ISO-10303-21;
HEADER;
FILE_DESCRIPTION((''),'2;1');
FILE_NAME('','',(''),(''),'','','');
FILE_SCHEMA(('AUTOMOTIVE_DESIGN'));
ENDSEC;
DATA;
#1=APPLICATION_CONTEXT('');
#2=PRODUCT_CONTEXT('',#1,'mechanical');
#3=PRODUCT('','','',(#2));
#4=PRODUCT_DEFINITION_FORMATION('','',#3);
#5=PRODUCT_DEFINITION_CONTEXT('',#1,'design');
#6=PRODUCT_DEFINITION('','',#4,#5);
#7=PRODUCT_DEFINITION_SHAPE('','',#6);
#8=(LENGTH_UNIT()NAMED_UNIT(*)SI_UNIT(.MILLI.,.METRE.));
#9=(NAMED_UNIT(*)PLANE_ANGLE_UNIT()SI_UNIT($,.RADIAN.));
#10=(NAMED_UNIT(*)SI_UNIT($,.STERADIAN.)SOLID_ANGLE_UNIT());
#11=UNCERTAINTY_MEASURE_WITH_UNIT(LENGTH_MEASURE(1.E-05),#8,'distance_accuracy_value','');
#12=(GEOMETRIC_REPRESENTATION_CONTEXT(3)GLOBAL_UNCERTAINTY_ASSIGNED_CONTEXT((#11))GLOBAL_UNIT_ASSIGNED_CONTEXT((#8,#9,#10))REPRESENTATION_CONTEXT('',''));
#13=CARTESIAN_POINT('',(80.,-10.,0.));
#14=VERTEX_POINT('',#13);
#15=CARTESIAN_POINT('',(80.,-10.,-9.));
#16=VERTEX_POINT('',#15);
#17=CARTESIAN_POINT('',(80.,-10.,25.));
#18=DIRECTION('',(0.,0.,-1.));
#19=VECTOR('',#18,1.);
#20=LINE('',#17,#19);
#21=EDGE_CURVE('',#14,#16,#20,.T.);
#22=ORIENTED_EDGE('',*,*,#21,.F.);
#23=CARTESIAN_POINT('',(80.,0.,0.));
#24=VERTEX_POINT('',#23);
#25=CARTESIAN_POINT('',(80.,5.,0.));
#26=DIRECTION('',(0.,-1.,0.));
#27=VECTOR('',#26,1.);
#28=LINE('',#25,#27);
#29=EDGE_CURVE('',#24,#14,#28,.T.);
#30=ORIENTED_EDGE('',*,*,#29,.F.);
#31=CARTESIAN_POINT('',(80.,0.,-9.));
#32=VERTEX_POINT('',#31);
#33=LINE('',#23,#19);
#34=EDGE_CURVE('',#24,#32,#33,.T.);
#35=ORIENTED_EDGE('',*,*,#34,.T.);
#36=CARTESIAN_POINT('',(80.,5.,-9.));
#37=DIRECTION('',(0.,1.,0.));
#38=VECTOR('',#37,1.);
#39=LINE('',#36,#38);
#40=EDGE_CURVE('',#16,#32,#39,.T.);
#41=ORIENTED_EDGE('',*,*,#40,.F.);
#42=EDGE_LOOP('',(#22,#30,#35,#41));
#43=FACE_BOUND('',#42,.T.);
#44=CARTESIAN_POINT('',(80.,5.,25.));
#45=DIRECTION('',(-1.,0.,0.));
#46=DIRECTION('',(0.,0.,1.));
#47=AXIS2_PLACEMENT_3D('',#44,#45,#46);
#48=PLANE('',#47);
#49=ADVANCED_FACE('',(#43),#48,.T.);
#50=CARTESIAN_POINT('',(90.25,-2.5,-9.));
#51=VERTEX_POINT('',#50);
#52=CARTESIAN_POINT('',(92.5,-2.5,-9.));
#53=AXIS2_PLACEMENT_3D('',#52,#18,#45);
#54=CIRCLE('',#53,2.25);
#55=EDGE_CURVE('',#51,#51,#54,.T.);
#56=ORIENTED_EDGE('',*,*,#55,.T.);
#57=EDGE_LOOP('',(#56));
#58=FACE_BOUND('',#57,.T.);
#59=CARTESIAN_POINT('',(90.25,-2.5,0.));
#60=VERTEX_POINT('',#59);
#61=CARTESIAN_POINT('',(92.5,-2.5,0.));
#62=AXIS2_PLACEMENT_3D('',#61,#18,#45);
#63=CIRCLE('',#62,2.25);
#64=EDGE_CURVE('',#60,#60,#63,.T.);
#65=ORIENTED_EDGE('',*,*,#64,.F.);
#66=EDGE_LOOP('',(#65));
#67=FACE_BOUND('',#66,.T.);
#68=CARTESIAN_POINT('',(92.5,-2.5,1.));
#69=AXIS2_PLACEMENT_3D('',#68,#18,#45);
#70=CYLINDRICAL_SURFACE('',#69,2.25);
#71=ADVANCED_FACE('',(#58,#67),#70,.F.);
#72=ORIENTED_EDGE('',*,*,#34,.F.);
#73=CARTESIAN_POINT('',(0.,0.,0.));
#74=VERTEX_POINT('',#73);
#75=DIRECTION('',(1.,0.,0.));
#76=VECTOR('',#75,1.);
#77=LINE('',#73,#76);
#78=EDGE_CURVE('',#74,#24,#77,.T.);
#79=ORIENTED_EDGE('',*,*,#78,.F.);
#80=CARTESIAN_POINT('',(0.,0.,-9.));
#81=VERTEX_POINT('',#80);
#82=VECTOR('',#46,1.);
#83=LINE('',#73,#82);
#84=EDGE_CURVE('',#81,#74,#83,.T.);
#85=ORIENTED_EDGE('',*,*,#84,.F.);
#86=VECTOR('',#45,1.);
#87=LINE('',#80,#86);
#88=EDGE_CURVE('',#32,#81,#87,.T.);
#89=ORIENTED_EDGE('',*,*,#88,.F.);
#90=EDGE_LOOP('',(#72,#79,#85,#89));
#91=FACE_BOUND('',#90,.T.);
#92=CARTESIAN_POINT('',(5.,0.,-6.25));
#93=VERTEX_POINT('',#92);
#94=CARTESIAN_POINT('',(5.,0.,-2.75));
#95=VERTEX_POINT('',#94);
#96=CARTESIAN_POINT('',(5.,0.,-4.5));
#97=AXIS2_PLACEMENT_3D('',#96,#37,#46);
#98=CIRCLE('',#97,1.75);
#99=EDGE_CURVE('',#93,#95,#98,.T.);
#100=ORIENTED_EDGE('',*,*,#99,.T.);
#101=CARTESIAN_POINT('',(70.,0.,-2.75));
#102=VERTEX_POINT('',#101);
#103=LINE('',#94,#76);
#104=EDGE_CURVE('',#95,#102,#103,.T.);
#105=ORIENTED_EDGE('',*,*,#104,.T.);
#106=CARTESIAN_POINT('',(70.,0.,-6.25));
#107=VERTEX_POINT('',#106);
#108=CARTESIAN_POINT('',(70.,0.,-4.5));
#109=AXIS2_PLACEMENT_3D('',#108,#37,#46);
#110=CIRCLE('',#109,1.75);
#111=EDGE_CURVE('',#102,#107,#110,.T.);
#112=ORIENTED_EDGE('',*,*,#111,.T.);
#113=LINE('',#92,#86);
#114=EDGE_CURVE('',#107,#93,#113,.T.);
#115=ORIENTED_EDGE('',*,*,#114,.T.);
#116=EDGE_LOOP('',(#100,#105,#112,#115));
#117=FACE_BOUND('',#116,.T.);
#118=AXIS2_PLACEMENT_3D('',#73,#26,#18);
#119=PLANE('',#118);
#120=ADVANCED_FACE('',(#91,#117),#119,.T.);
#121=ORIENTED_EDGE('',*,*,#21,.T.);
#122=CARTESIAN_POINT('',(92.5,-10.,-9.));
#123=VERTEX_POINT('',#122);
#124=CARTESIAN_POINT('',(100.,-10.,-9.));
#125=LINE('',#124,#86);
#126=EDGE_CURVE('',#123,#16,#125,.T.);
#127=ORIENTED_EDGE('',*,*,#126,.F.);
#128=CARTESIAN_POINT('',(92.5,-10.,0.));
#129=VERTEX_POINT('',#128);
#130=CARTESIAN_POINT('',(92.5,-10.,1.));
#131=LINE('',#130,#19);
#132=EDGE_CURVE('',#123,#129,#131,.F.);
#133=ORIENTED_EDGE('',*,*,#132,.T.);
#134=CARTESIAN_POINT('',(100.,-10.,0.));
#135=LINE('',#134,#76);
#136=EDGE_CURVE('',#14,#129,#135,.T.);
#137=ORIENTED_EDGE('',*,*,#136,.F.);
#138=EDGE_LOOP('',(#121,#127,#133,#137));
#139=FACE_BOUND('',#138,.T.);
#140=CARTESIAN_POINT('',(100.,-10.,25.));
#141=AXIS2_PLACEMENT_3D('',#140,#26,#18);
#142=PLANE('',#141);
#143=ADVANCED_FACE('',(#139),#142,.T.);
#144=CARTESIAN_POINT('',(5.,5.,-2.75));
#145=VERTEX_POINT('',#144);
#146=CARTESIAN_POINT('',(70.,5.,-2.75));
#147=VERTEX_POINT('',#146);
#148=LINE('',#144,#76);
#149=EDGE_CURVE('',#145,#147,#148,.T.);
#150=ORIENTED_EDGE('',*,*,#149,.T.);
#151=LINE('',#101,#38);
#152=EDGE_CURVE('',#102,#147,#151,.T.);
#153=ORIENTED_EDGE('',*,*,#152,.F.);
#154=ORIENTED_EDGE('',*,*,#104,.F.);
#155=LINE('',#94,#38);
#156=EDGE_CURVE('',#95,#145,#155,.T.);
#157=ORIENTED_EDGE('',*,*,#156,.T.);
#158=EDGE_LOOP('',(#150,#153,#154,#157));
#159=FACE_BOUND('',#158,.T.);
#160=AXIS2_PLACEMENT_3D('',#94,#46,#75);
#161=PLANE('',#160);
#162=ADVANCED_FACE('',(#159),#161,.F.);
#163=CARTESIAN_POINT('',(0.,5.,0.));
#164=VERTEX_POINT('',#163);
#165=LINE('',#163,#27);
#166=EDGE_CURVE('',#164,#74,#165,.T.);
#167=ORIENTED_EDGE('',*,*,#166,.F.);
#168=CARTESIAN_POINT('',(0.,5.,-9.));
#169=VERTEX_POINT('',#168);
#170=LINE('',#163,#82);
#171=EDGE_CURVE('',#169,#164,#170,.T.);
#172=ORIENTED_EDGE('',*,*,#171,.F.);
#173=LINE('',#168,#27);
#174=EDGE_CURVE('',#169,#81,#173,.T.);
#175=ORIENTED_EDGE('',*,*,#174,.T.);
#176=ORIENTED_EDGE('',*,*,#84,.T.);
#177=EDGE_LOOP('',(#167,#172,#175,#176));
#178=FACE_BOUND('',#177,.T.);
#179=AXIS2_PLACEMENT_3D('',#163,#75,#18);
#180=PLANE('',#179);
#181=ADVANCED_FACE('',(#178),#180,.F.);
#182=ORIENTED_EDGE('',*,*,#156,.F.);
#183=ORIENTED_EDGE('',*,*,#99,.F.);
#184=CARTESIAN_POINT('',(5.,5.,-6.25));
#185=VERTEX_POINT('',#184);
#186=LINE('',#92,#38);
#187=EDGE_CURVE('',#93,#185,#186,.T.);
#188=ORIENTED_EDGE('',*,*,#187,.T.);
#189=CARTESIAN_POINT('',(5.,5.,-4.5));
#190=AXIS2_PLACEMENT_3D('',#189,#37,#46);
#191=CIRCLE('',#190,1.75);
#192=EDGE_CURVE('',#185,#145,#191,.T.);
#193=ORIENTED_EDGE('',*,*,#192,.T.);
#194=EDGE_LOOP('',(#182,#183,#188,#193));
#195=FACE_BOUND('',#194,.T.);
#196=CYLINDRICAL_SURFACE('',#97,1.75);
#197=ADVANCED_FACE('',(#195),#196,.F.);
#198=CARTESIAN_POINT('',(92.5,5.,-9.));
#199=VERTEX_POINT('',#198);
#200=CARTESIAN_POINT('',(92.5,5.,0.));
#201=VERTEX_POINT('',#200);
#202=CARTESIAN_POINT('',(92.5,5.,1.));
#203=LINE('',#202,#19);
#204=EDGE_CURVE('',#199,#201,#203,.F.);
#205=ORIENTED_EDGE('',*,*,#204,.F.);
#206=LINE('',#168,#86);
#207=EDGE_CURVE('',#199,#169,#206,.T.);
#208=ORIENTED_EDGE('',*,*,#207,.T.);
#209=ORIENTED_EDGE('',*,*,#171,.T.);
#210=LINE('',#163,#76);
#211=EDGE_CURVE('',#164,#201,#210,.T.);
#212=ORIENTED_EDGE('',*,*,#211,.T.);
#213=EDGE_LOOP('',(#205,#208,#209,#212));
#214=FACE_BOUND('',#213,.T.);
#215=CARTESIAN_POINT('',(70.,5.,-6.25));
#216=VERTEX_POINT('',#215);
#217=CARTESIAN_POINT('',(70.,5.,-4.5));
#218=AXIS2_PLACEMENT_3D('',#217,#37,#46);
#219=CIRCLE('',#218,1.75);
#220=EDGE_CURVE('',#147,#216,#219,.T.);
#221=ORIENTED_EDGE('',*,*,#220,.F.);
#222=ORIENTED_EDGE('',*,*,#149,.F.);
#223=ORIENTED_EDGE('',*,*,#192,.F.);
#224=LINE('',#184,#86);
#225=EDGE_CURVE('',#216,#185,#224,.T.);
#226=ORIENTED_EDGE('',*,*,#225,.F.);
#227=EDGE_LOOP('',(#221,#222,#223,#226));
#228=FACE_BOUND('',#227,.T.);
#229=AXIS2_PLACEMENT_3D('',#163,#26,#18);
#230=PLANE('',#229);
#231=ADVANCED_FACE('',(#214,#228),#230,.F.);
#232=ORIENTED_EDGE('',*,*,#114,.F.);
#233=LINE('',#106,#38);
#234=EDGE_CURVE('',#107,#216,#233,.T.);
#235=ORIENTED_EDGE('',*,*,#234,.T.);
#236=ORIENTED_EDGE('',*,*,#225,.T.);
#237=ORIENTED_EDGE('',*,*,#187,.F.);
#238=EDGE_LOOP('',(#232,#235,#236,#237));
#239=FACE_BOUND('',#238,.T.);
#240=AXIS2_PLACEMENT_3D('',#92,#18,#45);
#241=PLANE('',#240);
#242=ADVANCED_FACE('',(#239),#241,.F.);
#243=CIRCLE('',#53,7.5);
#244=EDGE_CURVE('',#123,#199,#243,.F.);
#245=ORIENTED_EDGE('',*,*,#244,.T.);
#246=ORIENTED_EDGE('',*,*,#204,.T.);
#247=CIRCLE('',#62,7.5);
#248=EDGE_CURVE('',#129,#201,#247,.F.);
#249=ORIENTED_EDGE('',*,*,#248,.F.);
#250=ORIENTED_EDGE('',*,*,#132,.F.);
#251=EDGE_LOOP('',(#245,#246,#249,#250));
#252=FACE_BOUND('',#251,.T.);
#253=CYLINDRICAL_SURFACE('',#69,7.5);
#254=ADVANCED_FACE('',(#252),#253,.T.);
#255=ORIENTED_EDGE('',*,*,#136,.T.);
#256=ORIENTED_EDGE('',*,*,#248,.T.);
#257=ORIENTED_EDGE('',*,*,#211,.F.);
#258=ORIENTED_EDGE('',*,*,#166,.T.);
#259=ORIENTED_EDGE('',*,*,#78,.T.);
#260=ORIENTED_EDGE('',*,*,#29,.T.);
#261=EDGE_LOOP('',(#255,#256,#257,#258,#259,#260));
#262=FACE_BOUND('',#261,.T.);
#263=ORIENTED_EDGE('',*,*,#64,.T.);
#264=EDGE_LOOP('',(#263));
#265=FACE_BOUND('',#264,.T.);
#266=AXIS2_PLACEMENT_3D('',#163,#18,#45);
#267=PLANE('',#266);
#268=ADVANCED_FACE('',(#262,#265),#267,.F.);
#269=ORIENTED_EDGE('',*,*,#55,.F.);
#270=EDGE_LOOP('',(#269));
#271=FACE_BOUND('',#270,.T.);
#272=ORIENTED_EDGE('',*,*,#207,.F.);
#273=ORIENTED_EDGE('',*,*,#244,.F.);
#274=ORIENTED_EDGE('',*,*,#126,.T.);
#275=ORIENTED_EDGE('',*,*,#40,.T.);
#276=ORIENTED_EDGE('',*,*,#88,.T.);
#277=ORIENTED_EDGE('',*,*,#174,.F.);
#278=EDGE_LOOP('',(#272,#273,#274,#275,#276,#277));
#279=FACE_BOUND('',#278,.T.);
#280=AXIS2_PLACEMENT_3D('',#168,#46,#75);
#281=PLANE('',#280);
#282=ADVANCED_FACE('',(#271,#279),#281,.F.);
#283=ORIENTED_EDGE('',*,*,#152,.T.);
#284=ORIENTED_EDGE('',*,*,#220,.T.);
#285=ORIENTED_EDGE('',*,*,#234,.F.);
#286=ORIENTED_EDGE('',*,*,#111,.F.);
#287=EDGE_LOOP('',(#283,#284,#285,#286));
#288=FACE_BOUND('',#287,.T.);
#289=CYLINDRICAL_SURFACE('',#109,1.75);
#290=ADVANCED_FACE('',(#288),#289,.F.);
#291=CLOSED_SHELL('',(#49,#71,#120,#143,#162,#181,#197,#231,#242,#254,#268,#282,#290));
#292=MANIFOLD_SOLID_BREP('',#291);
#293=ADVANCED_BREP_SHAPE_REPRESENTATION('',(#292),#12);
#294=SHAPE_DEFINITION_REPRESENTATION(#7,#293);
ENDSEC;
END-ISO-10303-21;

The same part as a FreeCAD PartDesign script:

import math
import FreeCAD as App
import Part
import Sketcher
Q = App.Units.Quantity


def add_polygon(sketch, points):
    """Adds a closed chain of lines whose ends are joined by coincident constraints."""
    first, n = sketch.GeometryCount, len(points)
    for a, b in zip(points, points[1:] + points[:1]):
        sketch.addGeometry(Part.LineSegment(App.Vector(*a, 0), App.Vector(*b, 0)), False)
    for i in range(n):
        sketch.addConstraint(Sketcher.Constraint("Coincident", first + i, 2, first + (i + 1) % n, 1))

doc = App.newDocument("Part")
params = doc.addObject("Spreadsheet::Sheet", "Params")
for row, (alias, value) in enumerate([
    ("sketch1_width", "100 mm"),
    ("sketch1_height", "9 mm"),
    ("pad1_length", "5 mm"),
    ("sketch2_width", "65 mm"),
    ("sketch2_radius", "1.75 mm"),
    ("sketch3_width", "20 mm"),
    ("sketch3_height", "15 mm"),
    ("pad2_length", "9 mm"),
    ("sketch4_diameter", "4.5 mm"),
    ("sketch4_radius", "7.5 mm"),
    ("pocket2_length", "10 mm"),
], start=1):
    params.set(f"A{row}", alias)
    params.set(f"B{row}", "=" + value)
    params.setAlias(f"B{row}", alias)

body = doc.addObject("PartDesign::Body", "Body")

# Sketch on XZ plane
sketch1 = doc.addObject("Sketcher::SketchObject", "Sketch")
body.addObject(sketch1)
sketch1.AttachmentSupport = (doc.XZ_Plane, [""])
sketch1.MapMode = "FlatFace"
add_polygon(sketch1, [(0, -9), (0, 0), (100, 0), (100, -9)])  # lines 0-3
sketch1.addConstraint([
    Sketcher.Constraint("Vertical", 0),
    Sketcher.Constraint("Horizontal", 1),
    Sketcher.Constraint("Vertical", 2),
    Sketcher.Constraint("Horizontal", 3),
    Sketcher.Constraint("Coincident", 0, 2, -1, 1),
    Sketcher.Constraint("DistanceX", 1, 1, 1, 2, Q("100 mm")),
    Sketcher.Constraint("DistanceY", 0, 1, 0, 2, Q("9 mm")),
])
sketch1.setExpression("Constraints[9]", "Params.sketch1_width")
sketch1.setExpression("Constraints[10]", "Params.sketch1_height")
pad1 = doc.addObject("PartDesign::Pad", "Pad")
body.addObject(pad1)
pad1.Profile = sketch1
pad1.setExpression("Length", "Params.pad1_length")
pad1.Reversed = True

# Sketch on XZ plane
sketch2 = doc.addObject("Sketcher::SketchObject", "Sketch001")
body.addObject(sketch2)
sketch2.AttachmentSupport = (doc.XZ_Plane, [""])
sketch2.MapMode = "FlatFace"
sketch2.AttachmentOffset = App.Placement(App.Vector(0, 0, -5), App.Rotation())
sketch2.addGeometry([
    Part.LineSegment(App.Vector(70, -6.2, 0), App.Vector(5, -6.2, 0)),
    Part.ArcOfCircle(Part.Circle(App.Vector(5, -4.5, 0), App.Vector(0, 0, 1), 1.8), math.radians(90), math.radians(270)),
    Part.LineSegment(App.Vector(5, -2.8, 0), App.Vector(70, -2.8, 0)),
    Part.ArcOfCircle(Part.Circle(App.Vector(70, -4.5, 0), App.Vector(0, 0, 1), 1.8), math.radians(-90), math.radians(90)),
], False)
sketch2.addConstraint([
    Sketcher.Constraint("Tangent", 0, 2, 1, 2),
    Sketcher.Constraint("Tangent", 1, 1, 2, 1),
    Sketcher.Constraint("Tangent", 2, 2, 3, 2),
    Sketcher.Constraint("Tangent", 3, 1, 0, 1),
    Sketcher.Constraint("Horizontal", 0),
    Sketcher.Constraint("Horizontal", 2),
    Sketcher.Constraint("DistanceX", 0, 2, 0, 1, Q("65 mm")),
    Sketcher.Constraint("Radius", 1, Q("1.75 mm")),
    Sketcher.Constraint("DistanceX", -1, 1, 1, 3, Q("5 mm")),
    Sketcher.Constraint("DistanceY", 1, 3, -1, 1, Q("4.5 mm")),
])
sketch2.setExpression("Constraints[6]", "Params.sketch2_width")
sketch2.setExpression("Constraints[7]", "Params.sketch2_radius")
pocket1 = doc.addObject("PartDesign::Pocket", "Pocket")
body.addObject(pocket1)
pocket1.Profile = sketch2
pocket1.Type = "ThroughAll"
pocket1.Reversed = True

# Sketch on XY plane
sketch3 = doc.addObject("Sketcher::SketchObject", "Sketch002")
body.addObject(sketch3)
sketch3.AttachmentSupport = (doc.XY_Plane, [""])
sketch3.MapMode = "FlatFace"
sketch3.AttachmentOffset = App.Placement(App.Vector(0, 0, -9), App.Rotation())
add_polygon(sketch3, [(100, 5), (100, -10), (80, -10), (80, 5)])  # lines 0-3
sketch3.addConstraint([
    Sketcher.Constraint("Vertical", 0),
    Sketcher.Constraint("Horizontal", 1),
    Sketcher.Constraint("Vertical", 2),
    Sketcher.Constraint("Horizontal", 3),
    Sketcher.Constraint("DistanceX", 1, 2, 1, 1, Q("20 mm")),
    Sketcher.Constraint("DistanceY", 0, 2, 0, 1, Q("15 mm")),
    Sketcher.Constraint("DistanceX", -1, 1, 0, 2, Q("100 mm")),
    Sketcher.Constraint("DistanceY", 0, 2, -1, 1, Q("10 mm")),
])
sketch3.setExpression("Constraints[8]", "Params.sketch3_width")
sketch3.setExpression("Constraints[9]", "Params.sketch3_height")
pad2 = doc.addObject("PartDesign::Pad", "Pad001")
body.addObject(pad2)
pad2.Profile = sketch3
pad2.setExpression("Length", "Params.pad2_length")

# Sketch on XY plane
sketch4 = doc.addObject("Sketcher::SketchObject", "Sketch003")
body.addObject(sketch4)
sketch4.AttachmentSupport = (doc.XY_Plane, [""])
sketch4.MapMode = "FlatFace"
sketch4.AttachmentOffset = App.Placement(App.Vector(0, 0, -9), App.Rotation())
sketch4.addGeometry([
    Part.LineSegment(App.Vector(100, 5, 0), App.Vector(100, -2.5, 0)),  # 0
    Part.ArcOfCircle(Part.Circle(App.Vector(92.5, -2.5, 0), App.Vector(0, 0, 1), 7.5), math.radians(0), math.radians(90)),  # 1
    Part.LineSegment(App.Vector(92.5, 5, 0), App.Vector(100, 5, 0)),  # 2
    Part.LineSegment(App.Vector(100, -10, 0), App.Vector(92.5, -10, 0)),  # 3
    Part.ArcOfCircle(Part.Circle(App.Vector(92.5, -2.5, 0), App.Vector(0, 0, 1), 7.5), math.radians(-90), math.radians(0)),  # 4
    Part.LineSegment(App.Vector(100, -2.5, 0), App.Vector(100, -10, 0)),  # 5
    Part.Circle(App.Vector(92.5, -2.5, 0), App.Vector(0, 0, 1), 2.2),  # 6
], False)
sketch4.addConstraint([
    Sketcher.Constraint("Tangent", 0, 2, 1, 1),
    Sketcher.Constraint("Tangent", 1, 2, 2, 1),
    Sketcher.Constraint("Coincident", 2, 2, 0, 1),
    Sketcher.Constraint("Tangent", 3, 2, 4, 1),
    Sketcher.Constraint("Tangent", 4, 2, 5, 1),
    Sketcher.Constraint("Coincident", 5, 2, 3, 1),
    Sketcher.Constraint("Vertical", 0),
    Sketcher.Constraint("Horizontal", 2),
    Sketcher.Constraint("Horizontal", 3),
    Sketcher.Constraint("Vertical", 5),
    Sketcher.Constraint("Coincident", 4, 3, 1, 3),
    Sketcher.Constraint("Coincident", 6, 3, 1, 3),
    Sketcher.Constraint("Equal", 1, 4),
    Sketcher.Constraint("Diameter", 6, Q("4.5 mm")),
    Sketcher.Constraint("Radius", 1, Q("7.5 mm")),
    Sketcher.Constraint("DistanceX", -1, 1, 0, 2, Q("100 mm")),
    Sketcher.Constraint("DistanceY", -1, 1, 1, 2, Q("5 mm")),
])
sketch4.setExpression("Constraints[13]", "Params.sketch4_diameter")
sketch4.setExpression("Constraints[14]", "Params.sketch4_radius")
pocket2 = doc.addObject("PartDesign::Pocket", "Pocket001")
body.addObject(pocket2)
pocket2.Profile = sketch4
pocket2.setExpression("Length", "Params.pocket2_length")
pocket2.Reversed = True

doc.recompute()
